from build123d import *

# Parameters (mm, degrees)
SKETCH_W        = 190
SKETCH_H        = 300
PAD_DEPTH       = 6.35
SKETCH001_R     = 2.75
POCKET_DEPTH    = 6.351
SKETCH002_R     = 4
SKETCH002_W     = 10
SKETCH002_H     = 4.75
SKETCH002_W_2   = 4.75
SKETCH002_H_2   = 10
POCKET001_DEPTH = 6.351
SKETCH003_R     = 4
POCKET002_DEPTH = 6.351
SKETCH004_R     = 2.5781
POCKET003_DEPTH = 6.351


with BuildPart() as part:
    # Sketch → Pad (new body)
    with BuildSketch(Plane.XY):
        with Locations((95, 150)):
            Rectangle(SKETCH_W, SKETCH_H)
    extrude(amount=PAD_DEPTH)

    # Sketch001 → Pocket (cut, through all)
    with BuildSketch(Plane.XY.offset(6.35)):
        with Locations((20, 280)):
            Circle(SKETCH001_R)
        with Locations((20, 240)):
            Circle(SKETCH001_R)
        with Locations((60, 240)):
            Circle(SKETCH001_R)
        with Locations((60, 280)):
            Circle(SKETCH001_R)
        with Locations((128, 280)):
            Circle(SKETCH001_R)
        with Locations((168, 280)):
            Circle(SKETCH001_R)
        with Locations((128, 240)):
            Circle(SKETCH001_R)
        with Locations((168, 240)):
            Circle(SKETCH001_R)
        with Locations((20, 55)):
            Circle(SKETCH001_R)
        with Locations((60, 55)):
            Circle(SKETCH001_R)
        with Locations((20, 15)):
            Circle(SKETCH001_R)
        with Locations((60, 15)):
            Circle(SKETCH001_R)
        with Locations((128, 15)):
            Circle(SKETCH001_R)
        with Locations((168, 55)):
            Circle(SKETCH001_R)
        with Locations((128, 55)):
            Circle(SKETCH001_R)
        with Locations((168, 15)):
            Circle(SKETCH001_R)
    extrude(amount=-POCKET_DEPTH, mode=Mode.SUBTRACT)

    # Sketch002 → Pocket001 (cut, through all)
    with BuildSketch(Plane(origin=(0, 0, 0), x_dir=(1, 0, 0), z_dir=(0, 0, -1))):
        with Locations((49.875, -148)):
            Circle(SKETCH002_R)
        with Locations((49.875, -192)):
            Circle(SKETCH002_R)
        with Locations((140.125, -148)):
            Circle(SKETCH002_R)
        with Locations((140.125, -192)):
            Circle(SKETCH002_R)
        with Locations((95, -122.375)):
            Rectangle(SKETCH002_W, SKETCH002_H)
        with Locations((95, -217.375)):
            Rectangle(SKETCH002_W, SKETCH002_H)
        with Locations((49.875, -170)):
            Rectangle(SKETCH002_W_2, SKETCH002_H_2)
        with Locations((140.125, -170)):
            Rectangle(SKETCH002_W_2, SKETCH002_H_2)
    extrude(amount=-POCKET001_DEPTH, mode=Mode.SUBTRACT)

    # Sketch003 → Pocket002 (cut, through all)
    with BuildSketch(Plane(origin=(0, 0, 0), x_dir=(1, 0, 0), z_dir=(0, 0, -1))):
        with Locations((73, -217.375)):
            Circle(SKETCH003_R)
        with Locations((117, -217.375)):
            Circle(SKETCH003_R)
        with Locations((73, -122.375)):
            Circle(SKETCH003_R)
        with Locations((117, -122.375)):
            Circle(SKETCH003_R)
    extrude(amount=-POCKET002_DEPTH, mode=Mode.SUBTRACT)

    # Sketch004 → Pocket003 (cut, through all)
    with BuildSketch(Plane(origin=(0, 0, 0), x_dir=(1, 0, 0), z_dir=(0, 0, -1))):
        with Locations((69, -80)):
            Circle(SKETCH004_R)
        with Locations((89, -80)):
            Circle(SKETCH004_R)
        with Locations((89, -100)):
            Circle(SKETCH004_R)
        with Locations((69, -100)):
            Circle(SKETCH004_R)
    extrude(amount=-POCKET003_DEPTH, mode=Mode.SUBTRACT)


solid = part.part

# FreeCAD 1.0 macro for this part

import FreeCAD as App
import Part
import Sketcher

V = App.Vector

doc = App.newDocument("Part")
body = doc.addObject("PartDesign::Body", "Body")

# Sketch on XY plane
sketch1 = doc.addObject("Sketcher::SketchObject", "Sketch")
body.addObject(sketch1)
sketch1.AttachmentSupport = (doc.XY_Plane, [""])
sketch1.MapMode = "FlatFace"
sketch1.addGeometry(Part.LineSegment(V(0, 300, 0), V(0, 0, 0)), False)
sketch1.addGeometry(Part.LineSegment(V(0, 0, 0), V(190, 0, 0)), False)
sketch1.addGeometry(Part.LineSegment(V(190, 0, 0), V(190, 300, 0)), False)
sketch1.addGeometry(Part.LineSegment(V(190, 300, 0), V(0, 300, 0)), False)
sketch1.addConstraint(Sketcher.Constraint("Coincident", 0, 2, 1, 1))
sketch1.addConstraint(Sketcher.Constraint("Coincident", 1, 2, 2, 1))
sketch1.addConstraint(Sketcher.Constraint("Coincident", 2, 2, 3, 1))
sketch1.addConstraint(Sketcher.Constraint("Coincident", 3, 2, 0, 1))
sketch1.addConstraint(Sketcher.Constraint("Vertical", 0))
sketch1.addConstraint(Sketcher.Constraint("Horizontal", 1))
sketch1.addConstraint(Sketcher.Constraint("Vertical", 2))
sketch1.addConstraint(Sketcher.Constraint("Horizontal", 3))
sketch1.addConstraint(Sketcher.Constraint("Coincident", 0, 2, -1, 1))
sketch1.addConstraint(Sketcher.Constraint("DistanceX", 1, 1, 1, 2, 190.0))
sketch1.addConstraint(Sketcher.Constraint("DistanceY", 0, 2, 0, 1, 300.0))
pad1 = doc.addObject("PartDesign::Pad", "Pad")
body.addObject(pad1)
pad1.Profile = sketch1
pad1.Length = 6.35

# Sketch on XY plane
sketch2 = doc.addObject("Sketcher::SketchObject", "Sketch001")
body.addObject(sketch2)
sketch2.AttachmentSupport = (doc.XY_Plane, [""])
sketch2.MapMode = "FlatFace"
sketch2.AttachmentOffset = App.Placement(V(0, 0, 6.35), App.Rotation())
sketch2.addGeometry(Part.Circle(V(20, 280, 0), V(0, 0, 1), 2.8), False)
sketch2.addGeometry(Part.Circle(V(20, 240, 0), V(0, 0, 1), 2.8), False)
sketch2.addGeometry(Part.Circle(V(60, 240, 0), V(0, 0, 1), 2.8), False)
sketch2.addGeometry(Part.Circle(V(60, 280, 0), V(0, 0, 1), 2.8), False)
sketch2.addGeometry(Part.Circle(V(128, 280, 0), V(0, 0, 1), 2.8), False)
sketch2.addGeometry(Part.Circle(V(168, 280, 0), V(0, 0, 1), 2.8), False)
sketch2.addGeometry(Part.Circle(V(128, 240, 0), V(0, 0, 1), 2.8), False)
sketch2.addGeometry(Part.Circle(V(168, 240, 0), V(0, 0, 1), 2.8), False)
sketch2.addGeometry(Part.Circle(V(20, 55, 0), V(0, 0, 1), 2.8), False)
sketch2.addGeometry(Part.Circle(V(60, 55, 0), V(0, 0, 1), 2.8), False)
sketch2.addGeometry(Part.Circle(V(20, 15, 0), V(0, 0, 1), 2.8), False)
sketch2.addGeometry(Part.Circle(V(60, 15, 0), V(0, 0, 1), 2.8), False)
sketch2.addGeometry(Part.Circle(V(128, 15, 0), V(0, 0, 1), 2.8), False)
sketch2.addGeometry(Part.Circle(V(168, 55, 0), V(0, 0, 1), 2.8), False)
sketch2.addGeometry(Part.Circle(V(128, 55, 0), V(0, 0, 1), 2.8), False)
sketch2.addGeometry(Part.Circle(V(168, 15, 0), V(0, 0, 1), 2.8), False)
sketch2.addConstraint(Sketcher.Constraint("Equal", 0, 1))
sketch2.addConstraint(Sketcher.Constraint("Equal", 1, 2))
sketch2.addConstraint(Sketcher.Constraint("Equal", 2, 3))
sketch2.addConstraint(Sketcher.Constraint("Equal", 3, 4))
sketch2.addConstraint(Sketcher.Constraint("Equal", 4, 5))
sketch2.addConstraint(Sketcher.Constraint("Equal", 5, 6))
sketch2.addConstraint(Sketcher.Constraint("Equal", 6, 7))
sketch2.addConstraint(Sketcher.Constraint("Equal", 7, 8))
sketch2.addConstraint(Sketcher.Constraint("Equal", 8, 9))
sketch2.addConstraint(Sketcher.Constraint("Equal", 9, 10))
sketch2.addConstraint(Sketcher.Constraint("Equal", 10, 11))
sketch2.addConstraint(Sketcher.Constraint("Equal", 11, 12))
sketch2.addConstraint(Sketcher.Constraint("Equal", 12, 13))
sketch2.addConstraint(Sketcher.Constraint("Equal", 13, 14))
sketch2.addConstraint(Sketcher.Constraint("Equal", 14, 15))
sketch2.addConstraint(Sketcher.Constraint("Horizontal", 1, 3, 2, 3))
sketch2.addConstraint(Sketcher.Constraint("Horizontal", 0, 3, 3, 3))
sketch2.addConstraint(Sketcher.Constraint("Horizontal", 3, 3, 4, 3))
sketch2.addConstraint(Sketcher.Constraint("Horizontal", 4, 3, 5, 3))
sketch2.addConstraint(Sketcher.Constraint("Horizontal", 2, 3, 6, 3))
sketch2.addConstraint(Sketcher.Constraint("Horizontal", 6, 3, 7, 3))
sketch2.addConstraint(Sketcher.Constraint("Horizontal", 8, 3, 9, 3))
sketch2.addConstraint(Sketcher.Constraint("Horizontal", 10, 3, 11, 3))
sketch2.addConstraint(Sketcher.Constraint("Horizontal", 11, 3, 12, 3))
sketch2.addConstraint(Sketcher.Constraint("Horizontal", 9, 3, 13, 3))
sketch2.addConstraint(Sketcher.Constraint("Horizontal", 13, 3, 14, 3))
sketch2.addConstraint(Sketcher.Constraint("Horizontal", 12, 3, 15, 3))
sketch2.addConstraint(Sketcher.Constraint("Vertical", 0, 3, 1, 3))
sketch2.addConstraint(Sketcher.Constraint("Vertical", 2, 3, 3, 3))
sketch2.addConstraint(Sketcher.Constraint("Vertical", 4, 3, 6, 3))
sketch2.addConstraint(Sketcher.Constraint("Vertical", 5, 3, 7, 3))
sketch2.addConstraint(Sketcher.Constraint("Vertical", 1, 3, 8, 3))
sketch2.addConstraint(Sketcher.Constraint("Vertical", 3, 3, 9, 3))
sketch2.addConstraint(Sketcher.Constraint("Vertical", 8, 3, 10, 3))
sketch2.addConstraint(Sketcher.Constraint("Vertical", 9, 3, 11, 3))
sketch2.addConstraint(Sketcher.Constraint("Vertical", 6, 3, 12, 3))
sketch2.addConstraint(Sketcher.Constraint("Vertical", 7, 3, 13, 3))
sketch2.addConstraint(Sketcher.Constraint("Vertical", 12, 3, 14, 3))
sketch2.addConstraint(Sketcher.Constraint("Vertical", 13, 3, 15, 3))
sketch2.addConstraint(Sketcher.Constraint("Diameter", 0, 5.5))
sketch2.addConstraint(Sketcher.Constraint("DistanceX", -1, 1, 0, 3, 20.0))
sketch2.addConstraint(Sketcher.Constraint("DistanceY", -1, 1, 0, 3, 280.0))
sketch2.addConstraint(Sketcher.Constraint("DistanceY", -1, 1, 1, 3, 240.0))
sketch2.addConstraint(Sketcher.Constraint("DistanceX", -1, 1, 2, 3, 60.0))
sketch2.addConstraint(Sketcher.Constraint("DistanceX", -1, 1, 4, 3, 128.0))
sketch2.addConstraint(Sketcher.Constraint("DistanceX", -1, 1, 5, 3, 168.0))
sketch2.addConstraint(Sketcher.Constraint("DistanceY", -1, 1, 8, 3, 55.0))
sketch2.addConstraint(Sketcher.Constraint("DistanceY", -1, 1, 10, 3, 15.0))
pocket1 = doc.addObject("PartDesign::Pocket", "Pocket")
body.addObject(pocket1)
pocket1.Profile = sketch2
pocket1.Type = "ThroughAll"

# Sketch on XY plane
sketch3 = doc.addObject("Sketcher::SketchObject", "Sketch002")
body.addObject(sketch3)
sketch3.AttachmentSupport = (doc.XY_Plane, [""])
sketch3.MapMode = "FlatFace"
sketch3.addGeometry(Part.Circle(V(49.9, 148, 0), V(0, 0, 1), 4), False)
sketch3.addGeometry(Part.Circle(V(49.9, 192, 0), V(0, 0, 1), 4), False)
sketch3.addGeometry(Part.Circle(V(140.1, 148, 0), V(0, 0, 1), 4), False)
sketch3.addGeometry(Part.Circle(V(140.1, 192, 0), V(0, 0, 1), 4), False)
sketch3.addGeometry(Part.LineSegment(V(90, 120, 0), V(90, 124.8, 0)), False)
sketch3.addGeometry(Part.LineSegment(V(90, 124.8, 0), V(100, 124.8, 0)), False)
sketch3.addGeometry(Part.LineSegment(V(100, 124.8, 0), V(100, 120, 0)), False)
sketch3.addGeometry(Part.LineSegment(V(100, 120, 0), V(90, 120, 0)), False)
sketch3.addGeometry(Part.LineSegment(V(90, 215, 0), V(90, 219.8, 0)), False)
sketch3.addGeometry(Part.LineSegment(V(90, 219.8, 0), V(100, 219.8, 0)), False)
sketch3.addGeometry(Part.LineSegment(V(100, 219.8, 0), V(100, 215, 0)), False)
sketch3.addGeometry(Part.LineSegment(V(100, 215, 0), V(90, 215, 0)), False)
sketch3.addGeometry(Part.LineSegment(V(47.5, 165, 0), V(47.5, 175, 0)), False)
sketch3.addGeometry(Part.LineSegment(V(47.5, 175, 0), V(52.2, 175, 0)), False)
sketch3.addGeometry(Part.LineSegment(V(52.2, 175, 0), V(52.2, 165, 0)), False)
sketch3.addGeometry(Part.LineSegment(V(52.2, 165, 0), V(47.5, 165, 0)), False)
sketch3.addGeometry(Part.LineSegment(V(137.8, 165, 0), V(137.8, 175, 0)), False)
sketch3.addGeometry(Part.LineSegment(V(137.8, 175, 0), V(142.5, 175, 0)), False)
sketch3.addGeometry(Part.LineSegment(V(142.5, 175, 0), V(142.5, 165, 0)), False)
sketch3.addGeometry(Part.LineSegment(V(142.5, 165, 0), V(137.8, 165, 0)), False)
sketch3.addConstraint(Sketcher.Constraint("Coincident", 4, 2, 5, 1))
sketch3.addConstraint(Sketcher.Constraint("Coincident", 5, 2, 6, 1))
sketch3.addConstraint(Sketcher.Constraint("Coincident", 6, 2, 7, 1))
sketch3.addConstraint(Sketcher.Constraint("Coincident", 7, 2, 4, 1))
sketch3.addConstraint(Sketcher.Constraint("Coincident", 8, 2, 9, 1))
sketch3.addConstraint(Sketcher.Constraint("Coincident", 9, 2, 10, 1))
sketch3.addConstraint(Sketcher.Constraint("Coincident", 10, 2, 11, 1))
sketch3.addConstraint(Sketcher.Constraint("Coincident", 11, 2, 8, 1))
sketch3.addConstraint(Sketcher.Constraint("Coincident", 12, 2, 13, 1))
sketch3.addConstraint(Sketcher.Constraint("Coincident", 13, 2, 14, 1))
sketch3.addConstraint(Sketcher.Constraint("Coincident", 14, 2, 15, 1))
sketch3.addConstraint(Sketcher.Constraint("Coincident", 15, 2, 12, 1))
sketch3.addConstraint(Sketcher.Constraint("Coincident", 16, 2, 17, 1))
sketch3.addConstraint(Sketcher.Constraint("Coincident", 17, 2, 18, 1))
sketch3.addConstraint(Sketcher.Constraint("Coincident", 18, 2, 19, 1))
sketch3.addConstraint(Sketcher.Constraint("Coincident", 19, 2, 16, 1))
sketch3.addConstraint(Sketcher.Constraint("Vertical", 4))
sketch3.addConstraint(Sketcher.Constraint("Horizontal", 5))
sketch3.addConstraint(Sketcher.Constraint("Vertical", 6))
sketch3.addConstraint(Sketcher.Constraint("Horizontal", 7))
sketch3.addConstraint(Sketcher.Constraint("Vertical", 8))
sketch3.addConstraint(Sketcher.Constraint("Horizontal", 9))
sketch3.addConstraint(Sketcher.Constraint("Vertical", 10))
sketch3.addConstraint(Sketcher.Constraint("Horizontal", 11))
sketch3.addConstraint(Sketcher.Constraint("Vertical", 12))
sketch3.addConstraint(Sketcher.Constraint("Horizontal", 13))
sketch3.addConstraint(Sketcher.Constraint("Vertical", 14))
sketch3.addConstraint(Sketcher.Constraint("Horizontal", 15))
sketch3.addConstraint(Sketcher.Constraint("Vertical", 16))
sketch3.addConstraint(Sketcher.Constraint("Horizontal", 17))
sketch3.addConstraint(Sketcher.Constraint("Vertical", 18))
sketch3.addConstraint(Sketcher.Constraint("Horizontal", 19))
sketch3.addConstraint(Sketcher.Constraint("Equal", 0, 1))
sketch3.addConstraint(Sketcher.Constraint("Equal", 1, 2))
sketch3.addConstraint(Sketcher.Constraint("Equal", 2, 3))
sketch3.addConstraint(Sketcher.Constraint("Horizontal", 0, 3, 2, 3))
sketch3.addConstraint(Sketcher.Constraint("Horizontal", 1, 3, 3, 3))
sketch3.addConstraint(Sketcher.Constraint("Horizontal", 13, 2, 16, 2))
sketch3.addConstraint(Sketcher.Constraint("Horizontal", 15, 2, 18, 2))
sketch3.addConstraint(Sketcher.Constraint("Vertical", 0, 3, 1, 3))
sketch3.addConstraint(Sketcher.Constraint("Vertical", 2, 3, 3, 3))
sketch3.addConstraint(Sketcher.Constraint("Vertical", 7, 2, 8, 2))
sketch3.addConstraint(Sketcher.Constraint("Vertical", 6, 2, 9, 2))
sketch3.addConstraint(Sketcher.Constraint("Equal", 15, 17))
sketch3.addConstraint(Sketcher.Constraint("Equal", 19, 4))
sketch3.addConstraint(Sketcher.Constraint("Equal", 6, 8))
sketch3.addConstraint(Sketcher.Constraint("Equal", 11, 12))
sketch3.addConstraint(Sketcher.Constraint("Diameter", 0, 8.0))
sketch3.addConstraint(Sketcher.Constraint("DistanceX", 5, 1, 5, 2, 10.0))
sketch3.addConstraint(Sketcher.Constraint("DistanceY", -1, 1, 0, 3, 148.0))
sketch3.addConstraint(Sketcher.Constraint("DistanceY", -1, 1, 1, 3, 192.0))
sketch3.addConstraint(Sketcher.Constraint("DistanceX", -1, 1, 4, 2, 90.0))
sketch3.addConstraint(Sketcher.Constraint("DistanceY", -1, 1, 6, 2, 120.0))
sketch3.addConstraint(Sketcher.Constraint("DistanceY", -1, 1, 10, 2, 215.0))
sketch3.addConstraint(Sketcher.Constraint("DistanceY", -1, 1, 12, 2, 175.0))
sketch3.addConstraint(Sketcher.Constraint("DistanceX", 13, 1, 13, 2, 4.75))
sketch3.addConstraint(Sketcher.Constraint("DistanceX", -1, 1, 12, 2, 47.5))
sketch3.addConstraint(Sketcher.Constraint("DistanceX", -1, 1, 17, 2, 142.5))
sketch3.addConstraint(Sketcher.Constraint("DistanceX", 0, 3, 2, 3, 90.25))
sketch3.addConstraint(Sketcher.Constraint("DistanceX", -1, 1, 0, 3, 49.875))
pocket2 = doc.addObject("PartDesign::Pocket", "Pocket001")
body.addObject(pocket2)
pocket2.Profile = sketch3
pocket2.Type = "ThroughAll"
pocket2.Reversed = True

# Sketch on XY plane
sketch4 = doc.addObject("Sketcher::SketchObject", "Sketch003")
body.addObject(sketch4)
sketch4.AttachmentSupport = (doc.XY_Plane, [""])
sketch4.MapMode = "FlatFace"
sketch4.addGeometry(Part.Circle(V(73, 217.4, 0), V(0, 0, 1), 4), False)
sketch4.addGeometry(Part.Circle(V(117, 217.4, 0), V(0, 0, 1), 4), False)
sketch4.addGeometry(Part.Circle(V(73, 122.4, 0), V(0, 0, 1), 4), False)
sketch4.addGeometry(Part.Circle(V(117, 122.4, 0), V(0, 0, 1), 4), False)
sketch4.addConstraint(Sketcher.Constraint("Equal", 0, 1))
sketch4.addConstraint(Sketcher.Constraint("Equal", 1, 2))
sketch4.addConstraint(Sketcher.Constraint("Equal", 2, 3))
sketch4.addConstraint(Sketcher.Constraint("Horizontal", 0, 3, 1, 3))
sketch4.addConstraint(Sketcher.Constraint("Horizontal", 2, 3, 3, 3))
sketch4.addConstraint(Sketcher.Constraint("Vertical", 0, 3, 2, 3))
sketch4.addConstraint(Sketcher.Constraint("Vertical", 1, 3, 3, 3))
sketch4.addConstraint(Sketcher.Constraint("Diameter", 0, 8.0))
sketch4.addConstraint(Sketcher.Constraint("DistanceX", -1, 1, 0, 3, 73.0))
sketch4.addConstraint(Sketcher.Constraint("DistanceX", -1, 1, 1, 3, 117.0))
sketch4.addConstraint(Sketcher.Constraint("DistanceY", 2, 3, 0, 3, 95.0))
sketch4.addConstraint(Sketcher.Constraint("DistanceY", -1, 1, 0, 3, 217.375))
pocket3 = doc.addObject("PartDesign::Pocket", "Pocket002")
body.addObject(pocket3)
pocket3.Profile = sketch4
pocket3.Type = "ThroughAll"
pocket3.Reversed = True

# Sketch on XY plane
sketch5 = doc.addObject("Sketcher::SketchObject", "Sketch004")
body.addObject(sketch5)
sketch5.AttachmentSupport = (doc.XY_Plane, [""])
sketch5.MapMode = "FlatFace"
sketch5.addGeometry(Part.Circle(V(69, 80, 0), V(0, 0, 1), 2.6), False)
sketch5.addGeometry(Part.Circle(V(89, 80, 0), V(0, 0, 1), 2.6), False)
sketch5.addGeometry(Part.Circle(V(89, 100, 0), V(0, 0, 1), 2.6), False)
sketch5.addGeometry(Part.Circle(V(69, 100, 0), V(0, 0, 1), 2.6), False)
sketch5.addConstraint(Sketcher.Constraint("Equal", 0, 1))
sketch5.addConstraint(Sketcher.Constraint("Equal", 1, 2))
sketch5.addConstraint(Sketcher.Constraint("Equal", 2, 3))
sketch5.addConstraint(Sketcher.Constraint("Horizontal", 0, 3, 1, 3))
sketch5.addConstraint(Sketcher.Constraint("Horizontal", 2, 3, 3, 3))
sketch5.addConstraint(Sketcher.Constraint("Vertical", 1, 3, 2, 3))
sketch5.addConstraint(Sketcher.Constraint("Vertical", 0, 3, 3, 3))
sketch5.addConstraint(Sketcher.Constraint("DistanceX", -1, 1, 0, 3, 69.0))
sketch5.addConstraint(Sketcher.Constraint("DistanceY", -1, 1, 0, 3, 80.0))
sketch5.addConstraint(Sketcher.Constraint("DistanceX", -1, 1, 1, 3, 89.0))
sketch5.addConstraint(Sketcher.Constraint("DistanceY", -1, 1, 2, 3, 100.0))
sketch5.addConstraint(Sketcher.Constraint("Diameter", 0, 5.1562))
pocket4 = doc.addObject("PartDesign::Pocket", "Pocket003")
body.addObject(pocket4)
pocket4.Profile = sketch5
pocket4.Type = "ThroughAll"
pocket4.Reversed = True

doc.recompute()
